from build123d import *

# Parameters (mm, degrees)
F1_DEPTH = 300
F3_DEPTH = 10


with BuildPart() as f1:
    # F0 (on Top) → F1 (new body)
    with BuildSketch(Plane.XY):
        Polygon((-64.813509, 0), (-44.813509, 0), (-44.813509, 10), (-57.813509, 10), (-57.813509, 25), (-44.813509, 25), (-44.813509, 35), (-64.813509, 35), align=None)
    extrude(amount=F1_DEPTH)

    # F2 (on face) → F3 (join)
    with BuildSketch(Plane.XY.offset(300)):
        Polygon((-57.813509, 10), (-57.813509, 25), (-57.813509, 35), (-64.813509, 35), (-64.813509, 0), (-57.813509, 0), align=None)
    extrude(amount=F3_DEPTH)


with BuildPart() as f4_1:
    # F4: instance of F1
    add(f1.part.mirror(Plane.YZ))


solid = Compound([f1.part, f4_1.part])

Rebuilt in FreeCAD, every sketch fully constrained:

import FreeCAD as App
import Part
import Sketcher

V = App.Vector


def add_polygon(sketch, points):
    """Adds a closed chain of lines whose ends are joined by coincident constraints."""
    first, n = sketch.GeometryCount, len(points)
    for a, b in zip(points, points[1:] + points[:1]):
        sketch.addGeometry(Part.LineSegment(App.Vector(*a, 0), App.Vector(*b, 0)), False)
    for i in range(n):
        sketch.addConstraint(Sketcher.Constraint("Coincident", first + i, 2, first + (i + 1) % n, 1))

doc = App.newDocument("Part")
body = doc.addObject("PartDesign::Body", "Body")

# Sketch on XY plane
sketch1 = body.newObject("Sketcher::SketchObject", "Sketch")
sketch1.AttachmentSupport = (doc.getObject("XY_Plane"), [""])
sketch1.MapMode = "FlatFace"
add_polygon(sketch1, [(-65, 0), (-45, 0), (-45, 10), (-58, 10), (-58, 25), (-45, 25), (-45, 35), (-65, 35)])  # lines 0-7
sketch1.addConstraint(Sketcher.Constraint("Horizontal", 0))
sketch1.addConstraint(Sketcher.Constraint("Vertical", 1))
sketch1.addConstraint(Sketcher.Constraint("Horizontal", 2))
sketch1.addConstraint(Sketcher.Constraint("Vertical", 3))
sketch1.addConstraint(Sketcher.Constraint("Horizontal", 4))
sketch1.addConstraint(Sketcher.Constraint("Vertical", 5))
sketch1.addConstraint(Sketcher.Constraint("Horizontal", 6))
sketch1.addConstraint(Sketcher.Constraint("Vertical", 7))
sketch1.addConstraint(Sketcher.Constraint("PointOnObject", 0, 2, -1))
sketch1.addConstraint(Sketcher.Constraint("Vertical", 1, 2, 4, 2))
sketch1.addConstraint(Sketcher.Constraint("Equal", 1, 5))
sketch1.addConstraint(Sketcher.Constraint("DistanceX", 0, 1, 0, 2, 20.0))
sketch1.addConstraint(Sketcher.Constraint("DistanceX", 2, 2, 2, 1, 13.0))
sketch1.addConstraint(Sketcher.Constraint("DistanceY", 1, 1, 1, 2, 10.0))
sketch1.addConstraint(Sketcher.Constraint("DistanceY", 3, 1, 3, 2, 15.0))
sketch1.addConstraint(Sketcher.Constraint("DistanceX", 0, 2, -1, 1, 44.813509))
pad1 = body.newObject("PartDesign::Pad", "Pad")
pad1.Profile = sketch1
pad1.Length = 300

# Sketch on XY plane
sketch2 = body.newObject("Sketcher::SketchObject", "Sketch001")
sketch2.AttachmentSupport = (doc.getObject("XY_Plane"), [""])
sketch2.MapMode = "FlatFace"
sketch2.AttachmentOffset = App.Placement(V(0, 0, 300), App.Rotation())
add_polygon(sketch2, [(-58, 35), (-65, 35), (-65, 0), (-58, 0)])  # lines 0-3
sketch2.addConstraint(Sketcher.Constraint("Horizontal", 0))
sketch2.addConstraint(Sketcher.Constraint("Vertical", 1))
sketch2.addConstraint(Sketcher.Constraint("Horizontal", 2))
sketch2.addConstraint(Sketcher.Constraint("Vertical", 3))
sketch2.addConstraint(Sketcher.Constraint("PointOnObject", 1, 2, -1))
sketch2.addConstraint(Sketcher.Constraint("DistanceX", 0, 2, 0, 1, 7.0))
sketch2.addConstraint(Sketcher.Constraint("DistanceY", 1, 2, 1, 1, 35.0))
sketch2.addConstraint(Sketcher.Constraint("DistanceX", 0, 2, -1, 1, 64.813509))
pad2 = body.newObject("PartDesign::Pad", "Pad001")
pad2.Profile = sketch2
pad2.Length = 10
body2 = doc.addObject("PartDesign::Body", "Body001")
doc.recompute()

mirroring = doc.addObject("Part::Mirroring", "Mirroring")
mirroring.Source = body
mirroring.Base = V(0, 0, 0)
mirroring.Normal = V(1, 0, 0)
body2.BaseFeature = mirroring
doc.recompute()
mirroring.Visibility = False

doc.recompute()
